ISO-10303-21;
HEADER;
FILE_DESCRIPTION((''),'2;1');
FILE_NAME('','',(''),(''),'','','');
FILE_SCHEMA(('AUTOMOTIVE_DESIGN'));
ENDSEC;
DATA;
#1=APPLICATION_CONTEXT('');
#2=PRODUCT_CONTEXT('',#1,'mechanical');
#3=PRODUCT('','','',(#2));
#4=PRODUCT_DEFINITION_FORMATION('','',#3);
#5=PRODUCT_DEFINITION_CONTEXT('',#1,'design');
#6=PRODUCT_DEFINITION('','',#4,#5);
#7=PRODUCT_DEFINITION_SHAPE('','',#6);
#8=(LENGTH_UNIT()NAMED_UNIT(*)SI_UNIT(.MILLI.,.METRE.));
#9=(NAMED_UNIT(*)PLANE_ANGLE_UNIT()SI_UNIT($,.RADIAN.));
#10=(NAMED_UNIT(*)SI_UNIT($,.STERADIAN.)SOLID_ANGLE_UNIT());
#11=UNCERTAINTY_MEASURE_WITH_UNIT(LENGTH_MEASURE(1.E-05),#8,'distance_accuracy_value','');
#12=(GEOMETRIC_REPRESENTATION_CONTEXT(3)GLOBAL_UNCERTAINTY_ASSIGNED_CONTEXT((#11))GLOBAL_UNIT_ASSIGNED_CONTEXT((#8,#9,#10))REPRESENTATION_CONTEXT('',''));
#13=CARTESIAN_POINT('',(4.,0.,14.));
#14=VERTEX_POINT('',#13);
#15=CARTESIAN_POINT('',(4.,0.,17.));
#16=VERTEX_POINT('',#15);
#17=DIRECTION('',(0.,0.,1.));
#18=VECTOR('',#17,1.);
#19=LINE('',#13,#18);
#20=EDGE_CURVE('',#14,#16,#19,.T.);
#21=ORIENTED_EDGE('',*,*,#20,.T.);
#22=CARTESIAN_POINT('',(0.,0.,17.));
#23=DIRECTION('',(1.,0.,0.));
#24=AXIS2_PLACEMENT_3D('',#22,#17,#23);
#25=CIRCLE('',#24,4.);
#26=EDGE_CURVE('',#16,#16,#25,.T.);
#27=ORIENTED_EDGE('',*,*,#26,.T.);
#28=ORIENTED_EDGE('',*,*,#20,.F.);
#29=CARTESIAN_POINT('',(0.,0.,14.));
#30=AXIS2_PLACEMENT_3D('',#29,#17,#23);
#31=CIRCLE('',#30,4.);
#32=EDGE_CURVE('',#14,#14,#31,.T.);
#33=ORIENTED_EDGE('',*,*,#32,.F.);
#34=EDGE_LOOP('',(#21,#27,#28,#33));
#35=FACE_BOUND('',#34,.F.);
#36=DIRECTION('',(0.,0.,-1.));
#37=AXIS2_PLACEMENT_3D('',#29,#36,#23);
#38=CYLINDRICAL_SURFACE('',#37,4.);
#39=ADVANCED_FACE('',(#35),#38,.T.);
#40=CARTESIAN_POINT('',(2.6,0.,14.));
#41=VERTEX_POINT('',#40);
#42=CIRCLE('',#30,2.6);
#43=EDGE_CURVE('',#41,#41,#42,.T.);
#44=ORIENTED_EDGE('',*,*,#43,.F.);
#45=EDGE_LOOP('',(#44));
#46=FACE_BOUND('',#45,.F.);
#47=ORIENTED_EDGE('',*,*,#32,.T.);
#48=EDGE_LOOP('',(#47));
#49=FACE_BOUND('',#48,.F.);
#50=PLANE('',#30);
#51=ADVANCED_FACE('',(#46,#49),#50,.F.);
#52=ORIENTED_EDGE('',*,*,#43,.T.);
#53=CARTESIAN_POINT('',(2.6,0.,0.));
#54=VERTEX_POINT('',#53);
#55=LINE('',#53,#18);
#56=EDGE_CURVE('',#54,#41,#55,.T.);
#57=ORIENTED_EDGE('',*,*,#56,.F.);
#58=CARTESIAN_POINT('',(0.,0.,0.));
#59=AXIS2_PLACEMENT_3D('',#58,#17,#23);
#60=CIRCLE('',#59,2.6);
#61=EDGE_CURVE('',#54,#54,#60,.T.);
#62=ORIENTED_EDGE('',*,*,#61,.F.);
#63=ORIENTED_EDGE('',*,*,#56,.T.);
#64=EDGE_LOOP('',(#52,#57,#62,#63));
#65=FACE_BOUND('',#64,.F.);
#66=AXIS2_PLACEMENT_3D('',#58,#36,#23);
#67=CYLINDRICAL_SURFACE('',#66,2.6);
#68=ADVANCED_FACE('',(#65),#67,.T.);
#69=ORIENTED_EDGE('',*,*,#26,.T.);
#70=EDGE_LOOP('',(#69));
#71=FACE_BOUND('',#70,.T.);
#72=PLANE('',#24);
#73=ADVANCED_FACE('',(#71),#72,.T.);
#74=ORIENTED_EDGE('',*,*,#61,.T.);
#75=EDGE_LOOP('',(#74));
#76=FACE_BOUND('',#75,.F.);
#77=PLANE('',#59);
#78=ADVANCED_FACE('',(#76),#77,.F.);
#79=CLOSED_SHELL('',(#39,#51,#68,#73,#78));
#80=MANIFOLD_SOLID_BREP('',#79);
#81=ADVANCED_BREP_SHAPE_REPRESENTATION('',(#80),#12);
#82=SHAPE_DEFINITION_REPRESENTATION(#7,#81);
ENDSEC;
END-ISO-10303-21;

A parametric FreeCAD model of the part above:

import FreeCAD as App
import Part
import Sketcher

V = App.Vector
Q = App.Units.Quantity

doc = App.newDocument("Part")
body = doc.addObject("PartDesign::Body", "Body")

sketch1 = body.newObject("Sketcher::SketchObject", "Sketch")
sketch1.AttachmentSupport = (doc.getObject("XY_Plane"), [""])
sketch1.MapMode = "FlatFace"
sketch1.addGeometry(Part.Circle(V(0, 0, 0), V(0, 0, 1), 2.6), False)
sketch1.addConstraint(Sketcher.Constraint("Coincident", 0, 3, -1, 1))
sketch1.addConstraint(Sketcher.Constraint("Diameter", 0, Q("5.2 mm")))
pad1 = body.newObject("PartDesign::Pad", "Pad")
pad1.Profile = sketch1
pad1.Length = 14
body2 = doc.addObject("PartDesign::Body", "Body001")

sketch2 = body2.newObject("Sketcher::SketchObject", "Sketch001")
sketch2.AttachmentSupport = (doc.getObject("XY_Plane001"), [""])
sketch2.MapMode = "FlatFace"
sketch2.AttachmentOffset = App.Placement(V(0, 0, 14), App.Rotation())
sketch2.addGeometry(Part.Circle(V(0, 0, 0), V(0, 0, 1), 4), False)
sketch2.addConstraint(Sketcher.Constraint("Coincident", 0, 3, -1, 1))
sketch2.addConstraint(Sketcher.Constraint("Diameter", 0, Q("8 mm")))
pad2 = body2.newObject("PartDesign::Pad", "Pad001")
pad2.Profile = sketch2
pad2.Length = 3
doc.recompute()

boolean = body2.newObject("PartDesign::Boolean", "Boolean")
boolean.Type = "Fuse"
boolean.addObjects([body])

doc.recompute()
